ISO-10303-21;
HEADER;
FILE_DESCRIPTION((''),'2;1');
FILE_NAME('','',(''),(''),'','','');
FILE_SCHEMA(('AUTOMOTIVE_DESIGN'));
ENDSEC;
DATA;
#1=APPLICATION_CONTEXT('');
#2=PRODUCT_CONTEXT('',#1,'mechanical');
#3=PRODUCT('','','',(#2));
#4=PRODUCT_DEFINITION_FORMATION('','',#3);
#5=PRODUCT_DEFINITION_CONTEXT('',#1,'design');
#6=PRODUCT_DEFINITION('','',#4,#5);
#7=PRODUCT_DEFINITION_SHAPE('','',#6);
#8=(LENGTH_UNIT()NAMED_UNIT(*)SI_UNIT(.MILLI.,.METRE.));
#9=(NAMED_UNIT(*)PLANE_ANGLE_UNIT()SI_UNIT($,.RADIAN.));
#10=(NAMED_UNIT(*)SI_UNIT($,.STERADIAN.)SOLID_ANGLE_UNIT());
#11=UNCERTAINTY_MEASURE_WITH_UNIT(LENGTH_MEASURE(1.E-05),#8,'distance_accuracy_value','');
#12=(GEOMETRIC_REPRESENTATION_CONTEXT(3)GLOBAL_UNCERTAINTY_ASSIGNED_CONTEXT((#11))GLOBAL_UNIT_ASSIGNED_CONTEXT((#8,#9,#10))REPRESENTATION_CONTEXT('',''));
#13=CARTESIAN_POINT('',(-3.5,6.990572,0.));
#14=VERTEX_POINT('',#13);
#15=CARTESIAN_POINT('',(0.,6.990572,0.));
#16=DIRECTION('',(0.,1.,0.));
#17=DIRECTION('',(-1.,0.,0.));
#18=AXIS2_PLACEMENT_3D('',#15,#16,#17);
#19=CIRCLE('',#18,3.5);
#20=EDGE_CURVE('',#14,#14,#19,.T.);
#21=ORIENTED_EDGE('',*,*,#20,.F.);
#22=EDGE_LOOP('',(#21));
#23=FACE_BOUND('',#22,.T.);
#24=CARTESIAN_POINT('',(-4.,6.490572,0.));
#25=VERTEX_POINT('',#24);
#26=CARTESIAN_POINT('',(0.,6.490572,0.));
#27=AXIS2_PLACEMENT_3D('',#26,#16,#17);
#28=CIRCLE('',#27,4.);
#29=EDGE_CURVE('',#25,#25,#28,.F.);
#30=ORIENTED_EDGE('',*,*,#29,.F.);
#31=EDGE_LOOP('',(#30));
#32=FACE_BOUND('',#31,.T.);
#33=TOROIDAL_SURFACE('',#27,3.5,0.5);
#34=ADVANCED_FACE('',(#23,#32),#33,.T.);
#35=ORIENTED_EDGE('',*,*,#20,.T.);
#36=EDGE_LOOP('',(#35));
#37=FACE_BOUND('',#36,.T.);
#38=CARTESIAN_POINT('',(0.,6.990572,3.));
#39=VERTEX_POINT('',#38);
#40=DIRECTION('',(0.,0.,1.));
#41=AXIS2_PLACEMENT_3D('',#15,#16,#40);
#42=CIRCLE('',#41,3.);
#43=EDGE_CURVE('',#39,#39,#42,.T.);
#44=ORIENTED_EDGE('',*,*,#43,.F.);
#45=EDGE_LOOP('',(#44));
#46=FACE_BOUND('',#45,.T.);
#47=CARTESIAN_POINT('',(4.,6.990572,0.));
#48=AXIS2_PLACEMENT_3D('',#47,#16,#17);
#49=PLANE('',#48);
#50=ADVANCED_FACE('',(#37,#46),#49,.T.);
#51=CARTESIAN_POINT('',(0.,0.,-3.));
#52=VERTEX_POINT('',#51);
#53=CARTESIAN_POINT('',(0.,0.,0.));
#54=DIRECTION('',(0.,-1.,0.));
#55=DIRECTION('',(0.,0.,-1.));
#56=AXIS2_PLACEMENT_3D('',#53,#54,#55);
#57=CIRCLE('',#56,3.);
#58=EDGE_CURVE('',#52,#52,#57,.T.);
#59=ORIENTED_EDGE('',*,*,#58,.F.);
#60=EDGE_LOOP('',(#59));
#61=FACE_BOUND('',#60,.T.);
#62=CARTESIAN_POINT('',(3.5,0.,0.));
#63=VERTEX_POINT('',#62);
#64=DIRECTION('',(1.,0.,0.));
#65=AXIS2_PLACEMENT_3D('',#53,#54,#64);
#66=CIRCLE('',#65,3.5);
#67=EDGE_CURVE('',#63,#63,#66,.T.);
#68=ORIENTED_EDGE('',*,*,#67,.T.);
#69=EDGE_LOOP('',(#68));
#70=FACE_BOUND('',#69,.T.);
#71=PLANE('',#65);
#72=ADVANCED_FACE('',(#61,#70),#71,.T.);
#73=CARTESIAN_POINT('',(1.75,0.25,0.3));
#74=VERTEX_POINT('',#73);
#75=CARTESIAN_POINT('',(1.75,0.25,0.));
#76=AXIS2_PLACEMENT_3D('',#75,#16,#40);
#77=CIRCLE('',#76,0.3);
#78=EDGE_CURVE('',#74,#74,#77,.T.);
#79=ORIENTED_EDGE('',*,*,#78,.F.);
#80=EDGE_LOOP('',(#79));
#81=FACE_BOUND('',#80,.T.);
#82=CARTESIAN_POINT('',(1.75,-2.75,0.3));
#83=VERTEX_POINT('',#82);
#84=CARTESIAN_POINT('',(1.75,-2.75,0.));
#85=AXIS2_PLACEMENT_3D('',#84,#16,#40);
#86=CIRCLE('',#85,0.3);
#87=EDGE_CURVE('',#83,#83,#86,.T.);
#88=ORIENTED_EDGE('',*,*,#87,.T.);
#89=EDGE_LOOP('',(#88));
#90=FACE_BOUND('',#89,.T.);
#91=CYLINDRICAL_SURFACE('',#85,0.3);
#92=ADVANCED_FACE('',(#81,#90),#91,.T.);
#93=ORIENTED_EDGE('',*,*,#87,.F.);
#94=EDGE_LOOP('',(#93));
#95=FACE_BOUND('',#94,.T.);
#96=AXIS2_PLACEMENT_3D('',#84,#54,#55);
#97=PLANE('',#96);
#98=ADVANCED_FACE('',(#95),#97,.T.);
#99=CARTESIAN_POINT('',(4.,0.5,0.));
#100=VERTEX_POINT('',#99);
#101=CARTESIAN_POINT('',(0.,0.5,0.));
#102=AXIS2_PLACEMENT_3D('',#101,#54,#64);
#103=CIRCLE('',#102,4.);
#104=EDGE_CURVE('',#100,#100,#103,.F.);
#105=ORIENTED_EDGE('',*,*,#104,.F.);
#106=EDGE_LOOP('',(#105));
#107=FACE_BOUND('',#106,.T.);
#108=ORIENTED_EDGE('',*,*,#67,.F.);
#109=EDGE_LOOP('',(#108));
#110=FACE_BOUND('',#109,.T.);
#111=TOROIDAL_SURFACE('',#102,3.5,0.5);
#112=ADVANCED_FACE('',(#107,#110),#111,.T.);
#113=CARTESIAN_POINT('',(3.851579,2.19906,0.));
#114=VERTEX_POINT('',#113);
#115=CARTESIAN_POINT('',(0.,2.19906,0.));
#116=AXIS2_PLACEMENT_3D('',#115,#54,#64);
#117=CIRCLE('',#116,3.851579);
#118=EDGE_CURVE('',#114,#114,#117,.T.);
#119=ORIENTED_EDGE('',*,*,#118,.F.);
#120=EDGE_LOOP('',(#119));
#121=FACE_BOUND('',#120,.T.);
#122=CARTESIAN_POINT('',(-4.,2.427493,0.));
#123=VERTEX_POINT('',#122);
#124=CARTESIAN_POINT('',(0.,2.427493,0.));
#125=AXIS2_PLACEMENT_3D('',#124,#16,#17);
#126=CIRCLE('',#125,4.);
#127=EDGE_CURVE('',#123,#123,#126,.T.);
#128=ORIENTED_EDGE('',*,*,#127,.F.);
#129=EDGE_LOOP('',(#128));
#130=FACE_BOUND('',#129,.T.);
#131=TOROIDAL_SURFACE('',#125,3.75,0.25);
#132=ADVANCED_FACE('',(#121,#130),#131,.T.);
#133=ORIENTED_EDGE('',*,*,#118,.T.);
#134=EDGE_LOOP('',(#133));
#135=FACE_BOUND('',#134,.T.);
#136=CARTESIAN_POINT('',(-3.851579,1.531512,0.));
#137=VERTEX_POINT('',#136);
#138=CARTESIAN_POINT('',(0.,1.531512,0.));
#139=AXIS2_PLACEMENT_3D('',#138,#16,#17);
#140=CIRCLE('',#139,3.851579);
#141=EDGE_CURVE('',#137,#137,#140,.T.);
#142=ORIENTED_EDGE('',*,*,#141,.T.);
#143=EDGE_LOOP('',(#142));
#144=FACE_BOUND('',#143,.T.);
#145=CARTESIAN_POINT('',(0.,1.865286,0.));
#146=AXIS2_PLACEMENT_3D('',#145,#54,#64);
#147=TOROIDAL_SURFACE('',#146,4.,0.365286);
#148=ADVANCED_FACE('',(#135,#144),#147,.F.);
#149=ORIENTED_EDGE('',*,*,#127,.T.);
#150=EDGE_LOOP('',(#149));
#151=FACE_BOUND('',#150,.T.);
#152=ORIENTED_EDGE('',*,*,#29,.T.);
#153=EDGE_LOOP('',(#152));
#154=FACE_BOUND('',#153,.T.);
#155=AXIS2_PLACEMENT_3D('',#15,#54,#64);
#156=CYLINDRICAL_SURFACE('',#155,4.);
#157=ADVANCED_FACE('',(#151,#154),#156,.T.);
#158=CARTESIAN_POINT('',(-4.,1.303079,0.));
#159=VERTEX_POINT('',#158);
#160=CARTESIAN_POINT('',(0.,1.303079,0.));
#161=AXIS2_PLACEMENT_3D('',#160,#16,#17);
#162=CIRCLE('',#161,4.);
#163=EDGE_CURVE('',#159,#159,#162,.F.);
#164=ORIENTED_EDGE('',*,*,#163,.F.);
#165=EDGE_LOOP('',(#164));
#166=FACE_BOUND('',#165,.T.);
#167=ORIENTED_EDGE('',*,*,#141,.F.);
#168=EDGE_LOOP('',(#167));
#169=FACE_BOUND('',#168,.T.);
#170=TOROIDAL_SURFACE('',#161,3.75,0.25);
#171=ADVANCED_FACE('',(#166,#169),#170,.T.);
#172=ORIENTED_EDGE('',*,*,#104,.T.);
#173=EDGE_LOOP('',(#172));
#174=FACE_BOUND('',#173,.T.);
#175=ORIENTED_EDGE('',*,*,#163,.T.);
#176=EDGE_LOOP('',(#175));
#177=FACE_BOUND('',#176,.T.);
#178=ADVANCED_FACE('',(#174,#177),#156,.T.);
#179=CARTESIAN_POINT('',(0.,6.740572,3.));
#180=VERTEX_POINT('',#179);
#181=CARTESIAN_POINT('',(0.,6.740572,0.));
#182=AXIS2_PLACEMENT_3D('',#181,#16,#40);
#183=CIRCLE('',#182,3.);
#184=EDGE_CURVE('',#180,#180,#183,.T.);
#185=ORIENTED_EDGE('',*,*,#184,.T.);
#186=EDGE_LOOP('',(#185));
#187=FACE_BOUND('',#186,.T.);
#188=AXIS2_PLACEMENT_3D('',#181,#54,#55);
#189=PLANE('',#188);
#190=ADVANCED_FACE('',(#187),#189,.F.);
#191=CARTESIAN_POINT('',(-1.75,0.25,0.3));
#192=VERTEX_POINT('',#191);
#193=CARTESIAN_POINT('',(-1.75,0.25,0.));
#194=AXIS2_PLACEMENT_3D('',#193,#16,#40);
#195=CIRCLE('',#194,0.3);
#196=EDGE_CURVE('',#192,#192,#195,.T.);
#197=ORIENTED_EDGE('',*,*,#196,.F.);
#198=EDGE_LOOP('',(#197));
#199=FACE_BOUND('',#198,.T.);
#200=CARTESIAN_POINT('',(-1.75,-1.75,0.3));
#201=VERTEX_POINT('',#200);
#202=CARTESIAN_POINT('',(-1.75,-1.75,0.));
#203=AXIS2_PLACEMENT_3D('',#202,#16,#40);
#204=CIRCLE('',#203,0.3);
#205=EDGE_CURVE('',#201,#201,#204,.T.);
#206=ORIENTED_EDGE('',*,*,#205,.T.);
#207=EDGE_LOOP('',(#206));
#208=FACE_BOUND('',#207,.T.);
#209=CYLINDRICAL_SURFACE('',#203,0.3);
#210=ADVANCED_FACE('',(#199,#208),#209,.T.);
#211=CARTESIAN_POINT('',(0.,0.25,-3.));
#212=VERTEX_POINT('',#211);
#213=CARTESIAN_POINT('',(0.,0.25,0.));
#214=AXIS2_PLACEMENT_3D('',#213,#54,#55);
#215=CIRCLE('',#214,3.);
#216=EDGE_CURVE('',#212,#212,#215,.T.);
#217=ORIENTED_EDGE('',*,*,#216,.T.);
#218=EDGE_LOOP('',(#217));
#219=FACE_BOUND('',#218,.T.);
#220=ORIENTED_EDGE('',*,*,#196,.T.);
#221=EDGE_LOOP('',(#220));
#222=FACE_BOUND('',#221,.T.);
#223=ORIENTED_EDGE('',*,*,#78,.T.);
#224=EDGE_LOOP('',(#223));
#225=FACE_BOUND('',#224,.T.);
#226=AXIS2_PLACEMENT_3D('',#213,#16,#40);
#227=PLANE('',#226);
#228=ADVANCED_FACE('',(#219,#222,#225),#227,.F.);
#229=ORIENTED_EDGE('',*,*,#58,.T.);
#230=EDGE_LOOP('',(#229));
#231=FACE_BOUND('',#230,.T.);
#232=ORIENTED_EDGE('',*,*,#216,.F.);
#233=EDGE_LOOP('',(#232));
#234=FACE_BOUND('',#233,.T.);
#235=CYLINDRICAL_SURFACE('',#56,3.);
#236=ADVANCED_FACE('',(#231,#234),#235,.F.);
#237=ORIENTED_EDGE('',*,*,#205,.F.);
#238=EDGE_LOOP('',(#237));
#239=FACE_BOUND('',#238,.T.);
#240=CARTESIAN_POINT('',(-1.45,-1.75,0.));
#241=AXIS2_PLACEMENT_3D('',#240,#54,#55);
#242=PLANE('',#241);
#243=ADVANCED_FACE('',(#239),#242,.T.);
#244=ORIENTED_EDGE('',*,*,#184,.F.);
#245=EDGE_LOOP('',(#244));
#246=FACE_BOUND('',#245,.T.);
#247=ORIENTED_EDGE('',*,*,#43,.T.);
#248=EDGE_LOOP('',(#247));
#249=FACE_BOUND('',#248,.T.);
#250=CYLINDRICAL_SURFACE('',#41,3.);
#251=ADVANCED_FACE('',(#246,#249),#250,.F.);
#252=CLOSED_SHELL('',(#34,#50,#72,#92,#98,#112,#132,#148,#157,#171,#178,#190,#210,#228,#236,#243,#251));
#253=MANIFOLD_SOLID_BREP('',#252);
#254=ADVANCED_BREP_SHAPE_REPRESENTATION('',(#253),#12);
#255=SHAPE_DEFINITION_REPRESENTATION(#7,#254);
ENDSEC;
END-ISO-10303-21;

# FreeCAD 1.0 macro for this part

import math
import FreeCAD as App
import Part
import Sketcher
from FreeCAD import Vector


def edges_at(feature, points):
    """Names of the edges that pass closest to the given points."""
    edges = feature.Shape.Edges
    near = lambda p: min(range(len(edges)), key=lambda i: edges[i].distToShape(Part.Vertex(*p))[0])
    return sorted({f"Edge{near(p) + 1}" for p in points})


def add_polygon(sketch, points):
    """Adds a closed chain of lines whose ends are joined by coincident constraints."""
    first, n = sketch.GeometryCount, len(points)
    for a, b in zip(points, points[1:] + points[:1]):
        sketch.addGeometry(Part.LineSegment(App.Vector(*a, 0), App.Vector(*b, 0)), False)
    for i in range(n):
        sketch.addConstraint(Sketcher.Constraint("Coincident", first + i, 2, first + (i + 1) % n, 1))

doc = App.newDocument("Part")
body = doc.addObject("PartDesign::Body", "Body")

# Sketch on XY plane
sketch1 = body.newObject("Sketcher::SketchObject", "Sketch")
sketch1.AttachmentSupport = (doc.getObject("XY_Plane"), [""])
sketch1.MapMode = "FlatFace"
sketch1.addGeometry(Part.LineSegment(Vector(4, 6.990572, 0), Vector(0, 6.990572, 0)), False)
sketch1.addGeometry(Part.LineSegment(Vector(0, 6.990572, 0), Vector(0, 0, 0)), False)
sketch1.addGeometry(Part.LineSegment(Vector(0, 0, 0), Vector(4, 0, 0)), False)
sketch1.addGeometry(Part.LineSegment(Vector(4, 0, 0), Vector(4, 1.5, 0)), False)
sketch1.addGeometry(Part.ArcOfCircle(Part.Circle(Vector(4, 1.865286, 0), Vector(0, 0, 1), 0.365286), math.radians(90), math.radians(270)), False)
sketch1.addGeometry(Part.LineSegment(Vector(4, 2.230572, 0), Vector(4, 6.990572, 0)), False)
sketch1.addConstraint(Sketcher.Constraint("Coincident", 0, 2, 1, 1))
sketch1.addConstraint(Sketcher.Constraint("Coincident", 1, 2, 2, 1))
sketch1.addConstraint(Sketcher.Constraint("Coincident", 2, 2, 3, 1))
sketch1.addConstraint(Sketcher.Constraint("Coincident", 3, 2, 4, 2))
sketch1.addConstraint(Sketcher.Constraint("Coincident", 4, 1, 5, 1))
sketch1.addConstraint(Sketcher.Constraint("Coincident", 5, 2, 0, 1))
sketch1.addConstraint(Sketcher.Constraint("Horizontal", 0))
sketch1.addConstraint(Sketcher.Constraint("Vertical", 1))
sketch1.addConstraint(Sketcher.Constraint("Horizontal", 2))
sketch1.addConstraint(Sketcher.Constraint("Vertical", 3))
sketch1.addConstraint(Sketcher.Constraint("Vertical", 5))
sketch1.addConstraint(Sketcher.Constraint("Coincident", 1, 2, -1, 1))
sketch1.addConstraint(Sketcher.Constraint("Vertical", 4, 3, 2, 2))
sketch1.addConstraint(Sketcher.Constraint("Vertical", 3, 2, 4, 1))
sketch1.addConstraint(Sketcher.Constraint("DistanceX", 0, 2, 0, 1, 4.0))
sketch1.addConstraint(Sketcher.Constraint("DistanceY", 3, 1, 3, 2, 1.5))
sketch1.addConstraint(Sketcher.Constraint("DistanceY", 5, 1, 5, 2, 4.76))
sketch1.addConstraint(Sketcher.Constraint("Radius", 4, 0.365286))
revolution = body.newObject("PartDesign::Revolution", "Revolution")
revolution.Profile = sketch1
revolution.ReferenceAxis = (sketch1, ["V_Axis"])
revolution.Angle = 360

# Sketch on XZ plane
sketch2 = body.newObject("Sketcher::SketchObject", "Sketch001")
sketch2.AttachmentSupport = (doc.getObject("XZ_Plane"), [""])
sketch2.MapMode = "FlatFace"
sketch2.addGeometry(Part.Circle(Vector(0, 0, 0), Vector(0, 0, 1), 3), False)
sketch2.addConstraint(Sketcher.Constraint("Coincident", 0, 3, -1, 1))
sketch2.addConstraint(Sketcher.Constraint("Diameter", 0, 6.0))
doc.recompute()
hole = body.newObject("PartDesign::Hole", "Hole")
hole.Profile = sketch2
hole.ThreadType = "None"
hole.Diameter = 6
hole.DepthType = "Dimension"
hole.Depth = 0.25
hole.DrillPoint = "Flat"

# Sketch on XY plane
sketch3 = body.newObject("Sketcher::SketchObject", "Sketch002")
sketch3.AttachmentSupport = (doc.getObject("XY_Plane"), [""])
sketch3.MapMode = "FlatFace"
add_polygon(sketch3, [(2.05, 0.25), (2.05, -2.75), (1.75, -2.75), (1.75, 0.25)])  # lines 0-3
sketch3.addGeometry(Part.LineSegment(Vector(1.75, -2.75, 0), Vector(1.75, 0.25, 0)), True)  # axis
sketch3.addConstraint(Sketcher.Constraint("Vertical", 0))
sketch3.addConstraint(Sketcher.Constraint("Horizontal", 1))
sketch3.addConstraint(Sketcher.Constraint("Vertical", 2))
sketch3.addConstraint(Sketcher.Constraint("Horizontal", 3))
sketch3.addConstraint(Sketcher.Constraint("Vertical", 4))
sketch3.addConstraint(Sketcher.Constraint("Coincident", 4, 1, 1, 2))
sketch3.addConstraint(Sketcher.Constraint("Horizontal", 3, 2, 4, 2))
sketch3.addConstraint(Sketcher.Constraint("DistanceY", 0, 2, 0, 1, 3.0))
sketch3.addConstraint(Sketcher.Constraint("DistanceX", 1, 2, 1, 1, 0.3))
sketch3.addConstraint(Sketcher.Constraint("DistanceX", -1, 1, 0, 2, 2.05))
sketch3.addConstraint(Sketcher.Constraint("DistanceY", 0, 2, -1, 1, 2.75))
revolution2 = body.newObject("PartDesign::Revolution", "Revolution001")
revolution2.Profile = sketch3
revolution2.ReferenceAxis = (sketch3, ["Axis0"])
revolution2.Angle = 360

# Sketch on XY plane
sketch4 = body.newObject("Sketcher::SketchObject", "Sketch003")
sketch4.AttachmentSupport = (doc.getObject("XY_Plane"), [""])
sketch4.MapMode = "FlatFace"
add_polygon(sketch4, [(-1.45, 0.25), (-1.45, -1.75), (-1.75, -1.75), (-1.75, 0.25)])  # lines 0-3
sketch4.addGeometry(Part.LineSegment(Vector(-1.75, -1.75, 0), Vector(-1.75, 0.25, 0)), True)  # axis
sketch4.addConstraint(Sketcher.Constraint("Vertical", 0))
sketch4.addConstraint(Sketcher.Constraint("Horizontal", 1))
sketch4.addConstraint(Sketcher.Constraint("Vertical", 2))
sketch4.addConstraint(Sketcher.Constraint("Horizontal", 3))
sketch4.addConstraint(Sketcher.Constraint("Vertical", 4))
sketch4.addConstraint(Sketcher.Constraint("Coincident", 4, 1, 1, 2))
sketch4.addConstraint(Sketcher.Constraint("Horizontal", 3, 2, 4, 2))
sketch4.addConstraint(Sketcher.Constraint("DistanceY", 0, 2, 0, 1, 2.0))
sketch4.addConstraint(Sketcher.Constraint("DistanceX", 1, 2, 1, 1, 0.3))
sketch4.addConstraint(Sketcher.Constraint("DistanceX", 0, 2, -1, 1, 1.45))
sketch4.addConstraint(Sketcher.Constraint("DistanceY", 0, 2, -1, 1, 1.75))
revolution3 = body.newObject("PartDesign::Revolution", "Revolution002")
revolution3.Profile = sketch4
revolution3.ReferenceAxis = (sketch4, ["Axis0"])
revolution3.Angle = 360

# Sketch on XZ plane
sketch5 = body.newObject("Sketcher::SketchObject", "Sketch004")
sketch5.AttachmentSupport = (doc.getObject("XZ_Plane"), [""])
sketch5.MapMode = "FlatFace"
sketch5.AttachmentOffset = App.Placement(Vector(0, 0, -6.990572), App.Rotation())
sketch5.addGeometry(Part.Circle(Vector(0, 0, 0), Vector(0, 0, 1), 3), False)
sketch5.addConstraint(Sketcher.Constraint("Coincident", 0, 3, -1, 1))
sketch5.addConstraint(Sketcher.Constraint("Diameter", 0, 6.0))
doc.recompute()
hole2 = body.newObject("PartDesign::Hole", "Hole001")
hole2.Profile = sketch5
hole2.ThreadType = "None"
hole2.Diameter = 6
hole2.DepthType = "Dimension"
hole2.Depth = 0.25
hole2.DrillPoint = "Flat"
hole2.Reversed = True
doc.recompute()

fillet = body.newObject("PartDesign::Fillet", "Fillet")
fillet.Base = (hole2, edges_at(hole2, [(-4, 1.5, 0), (-4, 2.231, 0)]))
fillet.Radius = 0.25
doc.recompute()

fillet2 = body.newObject("PartDesign::Fillet", "Fillet001")
fillet2.Base = (fillet, edges_at(fillet, [(-4, 6.991, 0), (-4, 0, 0)]))
fillet2.Radius = 0.5

doc.recompute()
